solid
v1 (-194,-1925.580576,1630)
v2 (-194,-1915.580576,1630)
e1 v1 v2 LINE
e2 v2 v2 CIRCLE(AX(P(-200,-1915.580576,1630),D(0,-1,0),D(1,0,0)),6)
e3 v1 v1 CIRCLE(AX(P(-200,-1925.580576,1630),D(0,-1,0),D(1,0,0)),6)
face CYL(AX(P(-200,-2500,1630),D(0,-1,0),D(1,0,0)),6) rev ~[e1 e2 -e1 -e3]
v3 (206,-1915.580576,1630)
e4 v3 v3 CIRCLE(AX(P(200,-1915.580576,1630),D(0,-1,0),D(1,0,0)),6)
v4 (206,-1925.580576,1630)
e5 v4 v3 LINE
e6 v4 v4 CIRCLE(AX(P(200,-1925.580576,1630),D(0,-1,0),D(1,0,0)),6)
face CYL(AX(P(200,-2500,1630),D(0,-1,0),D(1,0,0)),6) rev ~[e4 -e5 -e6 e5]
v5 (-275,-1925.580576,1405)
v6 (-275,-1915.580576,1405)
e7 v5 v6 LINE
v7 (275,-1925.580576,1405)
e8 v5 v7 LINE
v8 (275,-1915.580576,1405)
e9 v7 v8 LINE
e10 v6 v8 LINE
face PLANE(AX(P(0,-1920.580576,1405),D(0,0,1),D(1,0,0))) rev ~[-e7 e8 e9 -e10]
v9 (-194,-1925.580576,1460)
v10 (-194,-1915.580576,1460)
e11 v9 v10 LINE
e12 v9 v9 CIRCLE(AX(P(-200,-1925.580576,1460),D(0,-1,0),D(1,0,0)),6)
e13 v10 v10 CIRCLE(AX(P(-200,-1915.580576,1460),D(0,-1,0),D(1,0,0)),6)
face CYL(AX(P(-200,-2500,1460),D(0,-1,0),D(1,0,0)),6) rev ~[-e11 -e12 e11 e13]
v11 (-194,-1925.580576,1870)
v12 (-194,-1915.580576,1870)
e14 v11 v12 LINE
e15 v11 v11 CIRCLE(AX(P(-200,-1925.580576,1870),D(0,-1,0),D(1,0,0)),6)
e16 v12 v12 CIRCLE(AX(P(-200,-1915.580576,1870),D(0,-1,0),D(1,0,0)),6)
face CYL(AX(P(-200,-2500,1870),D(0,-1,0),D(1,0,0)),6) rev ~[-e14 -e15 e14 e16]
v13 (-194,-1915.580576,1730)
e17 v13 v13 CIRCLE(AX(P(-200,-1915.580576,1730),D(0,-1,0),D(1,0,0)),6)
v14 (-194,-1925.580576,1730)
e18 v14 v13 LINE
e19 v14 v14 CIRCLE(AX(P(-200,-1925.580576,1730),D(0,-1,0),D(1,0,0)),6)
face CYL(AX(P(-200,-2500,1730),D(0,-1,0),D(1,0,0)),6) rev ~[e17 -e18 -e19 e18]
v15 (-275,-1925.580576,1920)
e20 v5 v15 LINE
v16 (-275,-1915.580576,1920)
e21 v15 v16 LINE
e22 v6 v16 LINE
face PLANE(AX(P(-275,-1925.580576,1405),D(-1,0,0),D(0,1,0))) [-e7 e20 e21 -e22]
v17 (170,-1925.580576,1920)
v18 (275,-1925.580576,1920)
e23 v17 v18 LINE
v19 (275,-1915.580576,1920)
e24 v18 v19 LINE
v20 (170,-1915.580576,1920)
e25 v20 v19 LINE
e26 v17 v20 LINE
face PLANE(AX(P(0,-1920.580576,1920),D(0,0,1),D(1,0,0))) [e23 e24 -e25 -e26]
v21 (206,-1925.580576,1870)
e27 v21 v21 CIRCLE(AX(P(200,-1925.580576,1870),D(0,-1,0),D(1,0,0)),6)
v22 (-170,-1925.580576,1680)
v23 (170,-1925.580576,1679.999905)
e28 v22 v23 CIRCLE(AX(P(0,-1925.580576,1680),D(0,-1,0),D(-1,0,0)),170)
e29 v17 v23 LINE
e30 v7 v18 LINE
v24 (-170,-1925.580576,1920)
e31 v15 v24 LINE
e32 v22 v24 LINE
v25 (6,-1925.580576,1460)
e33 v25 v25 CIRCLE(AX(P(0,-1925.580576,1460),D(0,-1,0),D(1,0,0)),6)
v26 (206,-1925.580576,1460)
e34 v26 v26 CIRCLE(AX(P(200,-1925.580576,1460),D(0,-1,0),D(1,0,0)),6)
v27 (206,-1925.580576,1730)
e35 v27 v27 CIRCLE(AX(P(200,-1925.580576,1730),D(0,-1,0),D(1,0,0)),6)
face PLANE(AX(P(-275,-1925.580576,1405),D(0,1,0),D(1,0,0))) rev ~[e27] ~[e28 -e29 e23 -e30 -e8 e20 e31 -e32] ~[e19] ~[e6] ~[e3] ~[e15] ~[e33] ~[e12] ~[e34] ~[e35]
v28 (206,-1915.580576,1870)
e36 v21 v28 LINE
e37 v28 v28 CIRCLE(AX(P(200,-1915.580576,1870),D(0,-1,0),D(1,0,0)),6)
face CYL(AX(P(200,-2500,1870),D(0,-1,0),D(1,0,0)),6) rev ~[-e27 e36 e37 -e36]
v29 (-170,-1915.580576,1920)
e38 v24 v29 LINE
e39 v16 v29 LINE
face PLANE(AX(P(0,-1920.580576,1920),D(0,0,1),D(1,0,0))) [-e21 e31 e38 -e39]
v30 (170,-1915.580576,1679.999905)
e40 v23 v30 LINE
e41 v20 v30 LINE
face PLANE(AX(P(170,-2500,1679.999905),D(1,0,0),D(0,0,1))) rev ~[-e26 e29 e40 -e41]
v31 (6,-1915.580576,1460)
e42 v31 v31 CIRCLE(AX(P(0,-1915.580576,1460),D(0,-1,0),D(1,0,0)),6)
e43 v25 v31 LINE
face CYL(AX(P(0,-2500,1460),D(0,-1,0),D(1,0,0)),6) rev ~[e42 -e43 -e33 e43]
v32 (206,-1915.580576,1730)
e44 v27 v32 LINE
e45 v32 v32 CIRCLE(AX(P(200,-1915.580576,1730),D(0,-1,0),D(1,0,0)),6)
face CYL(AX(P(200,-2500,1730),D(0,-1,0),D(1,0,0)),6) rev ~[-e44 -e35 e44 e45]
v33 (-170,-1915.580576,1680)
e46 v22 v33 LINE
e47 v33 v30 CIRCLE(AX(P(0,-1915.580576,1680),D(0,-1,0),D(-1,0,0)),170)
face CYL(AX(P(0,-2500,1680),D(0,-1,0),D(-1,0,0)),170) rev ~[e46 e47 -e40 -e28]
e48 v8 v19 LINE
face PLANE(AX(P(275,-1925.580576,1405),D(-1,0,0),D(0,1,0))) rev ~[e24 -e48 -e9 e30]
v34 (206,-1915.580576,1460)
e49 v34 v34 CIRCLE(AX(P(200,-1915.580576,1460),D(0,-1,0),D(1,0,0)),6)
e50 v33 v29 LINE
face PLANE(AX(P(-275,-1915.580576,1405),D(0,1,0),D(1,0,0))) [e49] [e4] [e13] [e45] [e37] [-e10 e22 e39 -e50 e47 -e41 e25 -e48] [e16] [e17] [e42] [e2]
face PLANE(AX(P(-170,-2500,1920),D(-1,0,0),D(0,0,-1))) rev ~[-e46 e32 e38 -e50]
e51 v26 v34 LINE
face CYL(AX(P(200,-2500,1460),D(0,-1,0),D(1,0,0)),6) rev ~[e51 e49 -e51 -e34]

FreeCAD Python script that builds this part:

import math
import FreeCAD as App
import Part
import Sketcher
Q = App.Units.Quantity

doc = App.newDocument("Part")
body = doc.addObject("PartDesign::Body", "Body")
body.AllowCompound = True

# Sketch on XZ plane
sketch1 = body.newObject("Sketcher::SketchObject", "Sketch")
sketch1.AttachmentSupport = (doc.getObject("XZ_Plane"), [""])
sketch1.MapMode = "FlatFace"
sketch1.AttachmentOffset = App.Placement(App.Vector(0, 0, 2500), App.Rotation())
sketch1.addGeometry([
    Part.Circle(App.Vector(-200, 1730, 0), App.Vector(0, 0, 1), 6),  # 0
    Part.Circle(App.Vector(-200, 1870, 0), App.Vector(0, 0, 1), 6),  # 1
    Part.Circle(App.Vector(200, 1870, 0), App.Vector(0, 0, 1), 6),  # 2
    Part.Circle(App.Vector(200, 1730, 0), App.Vector(0, 0, 1), 6),  # 3
    Part.Circle(App.Vector(-200, 1630, 0), App.Vector(0, 0, 1), 6),  # 4
    Part.Circle(App.Vector(-200, 1460, 0), App.Vector(0, 0, 1), 6),  # 5
    Part.Circle(App.Vector(200, 1630, 0), App.Vector(0, 0, 1), 6),  # 6
    Part.Circle(App.Vector(200, 1460, 0), App.Vector(0, 0, 1), 6),  # 7
    Part.Circle(App.Vector(0, 1460, 0), App.Vector(0, 0, 1), 6),  # 8
], False)
sketch1.addConstraint([
    Sketcher.Constraint("Equal", 0, 1),
    Sketcher.Constraint("Equal", 1, 2),
    Sketcher.Constraint("Equal", 2, 3),
    Sketcher.Constraint("Equal", 3, 4),
    Sketcher.Constraint("Equal", 4, 5),
    Sketcher.Constraint("Equal", 5, 6),
    Sketcher.Constraint("Equal", 6, 7),
    Sketcher.Constraint("Equal", 7, 8),
    Sketcher.Constraint("Symmetric", 1, 3, 2, 3, -2),
    Sketcher.Constraint("Symmetric", 0, 3, 3, 3, -2),
    Sketcher.Constraint("Symmetric", 4, 3, 6, 3, -2),
    Sketcher.Constraint("Symmetric", 5, 3, 7, 3, -2),
    Sketcher.Constraint("PointOnObject", 8, 3, -2),
    Sketcher.Constraint("Horizontal", 7, 3, 8, 3),
    Sketcher.Constraint("Vertical", 0, 3, 1, 3),
    Sketcher.Constraint("Vertical", 1, 3, 4, 3),
    Sketcher.Constraint("Vertical", 4, 3, 5, 3),
    Sketcher.Constraint("Diameter", 0, Q("12 mm")),
    Sketcher.Constraint("DistanceX", 0, 3, -1, 1, Q("200 mm")),
    Sketcher.Constraint("DistanceY", -1, 1, 0, 3, Q("1730 mm")),
    Sketcher.Constraint("DistanceY", -1, 1, 1, 3, Q("1870 mm")),
    Sketcher.Constraint("DistanceY", -1, 1, 4, 3, Q("1630 mm")),
    Sketcher.Constraint("DistanceY", -1, 1, 5, 3, Q("1460 mm")),
])
pad1 = body.newObject("PartDesign::Pad", "Pad")
pad1.Profile = sketch1
pad1.Length = 1000
pad1.Reversed = True
body2 = doc.addObject("PartDesign::Body", "Body001")

# Sketch on XZ plane
sketch2 = body2.newObject("Sketcher::SketchObject", "Sketch001")
sketch2.AttachmentSupport = (doc.getObject("XZ_Plane001"), [""])
sketch2.MapMode = "FlatFace"
sketch2.AttachmentOffset = App.Placement(App.Vector(0, 0, 2500), App.Rotation())
sketch2.addGeometry([
    Part.LineSegment(App.Vector(-170, 1920, 0), App.Vector(-170, 1680, 0)),
    Part.ArcOfCircle(Part.Circle(App.Vector(0, 1680, 0), App.Vector(0, 0, 1), 170), math.radians(180), math.radians(359.999968)),
    Part.LineSegment(App.Vector(170, 1679.999905, 0), App.Vector(170, 1920, 0)),
    Part.LineSegment(App.Vector(170, 1920, 0), App.Vector(-170, 1920, 0)),
], False)
sketch2.addConstraint([
    Sketcher.Constraint("Coincident", 0, 2, 1, 1),
    Sketcher.Constraint("Coincident", 1, 2, 2, 1),
    Sketcher.Constraint("Coincident", 2, 2, 3, 1),
    Sketcher.Constraint("Coincident", 3, 2, 0, 1),
    Sketcher.Constraint("Vertical", 0),
    Sketcher.Constraint("Vertical", 2),
    Sketcher.Constraint("Horizontal", 3),
    Sketcher.Constraint("PointOnObject", 1, 3, -2),
    Sketcher.Constraint("Radius", 1, Q("170 mm")),
    Sketcher.Constraint("DistanceY", 0, 2, 0, 1, Q("240 mm")),
    Sketcher.Constraint("DistanceY", -1, 1, 1, 3, Q("1680 mm")),
    Sketcher.Constraint("DistanceY", -1, 1, 0, 2, Q("1680 mm")),
    Sketcher.Constraint("DistanceY", 2, 1, 2, 2, Q("240.000095 mm")),
])
pad2 = body2.newObject("PartDesign::Pad", "Pad001")
pad2.Profile = sketch2
pad2.Length = 1000
pad2.Reversed = True
body3 = doc.addObject("PartDesign::Body", "Body002")

# Sketch on XY plane
sketch3 = body3.newObject("Sketcher::SketchObject", "Sketch002")
sketch3.AttachmentSupport = (doc.getObject("XY_Plane002"), [""])
sketch3.MapMode = "FlatFace"
sketch3.AttachmentOffset = App.Placement(App.Vector(0, 0, 1405), App.Rotation())
sketch3.addGeometry([
    Part.LineSegment(App.Vector(-275, -1915.580576, 0), App.Vector(-275, -1925.580576, 0)),
    Part.LineSegment(App.Vector(-275, -1925.580576, 0), App.Vector(275, -1925.580576, 0)),
    Part.LineSegment(App.Vector(275, -1925.580576, 0), App.Vector(275, -1915.580576, 0)),
    Part.LineSegment(App.Vector(275, -1915.580576, 0), App.Vector(-275, -1915.580576, 0)),
], False)
sketch3.addConstraint([
    Sketcher.Constraint("Coincident", 0, 2, 1, 1),
    Sketcher.Constraint("Coincident", 1, 2, 2, 1),
    Sketcher.Constraint("Coincident", 2, 2, 3, 1),
    Sketcher.Constraint("Coincident", 3, 2, 0, 1),
    Sketcher.Constraint("Vertical", 0),
    Sketcher.Constraint("Horizontal", 1),
    Sketcher.Constraint("Vertical", 2),
    Sketcher.Constraint("Horizontal", 3),
    Sketcher.Constraint("DistanceX", 1, 1, 1, 2, Q("550 mm")),
    Sketcher.Constraint("DistanceY", 0, 2, 0, 1, Q("10 mm")),
    Sketcher.Constraint("DistanceX", 0, 2, -1, 1, Q("275 mm")),
    Sketcher.Constraint("DistanceY", 0, 2, -1, 1, Q("1925.580576 mm")),
])
pad3 = body3.newObject("PartDesign::Pad", "Pad002")
pad3.Profile = sketch3
pad3.Length = 515
doc.recompute()

boolean = body3.newObject("PartDesign::Boolean", "Boolean")
boolean.Type = "Cut"
boolean.addObjects([body2])
doc.recompute()

boolean2 = body3.newObject("PartDesign::Boolean", "Boolean001")
boolean2.Type = "Cut"
boolean2.addObjects([body])

doc.recompute()
